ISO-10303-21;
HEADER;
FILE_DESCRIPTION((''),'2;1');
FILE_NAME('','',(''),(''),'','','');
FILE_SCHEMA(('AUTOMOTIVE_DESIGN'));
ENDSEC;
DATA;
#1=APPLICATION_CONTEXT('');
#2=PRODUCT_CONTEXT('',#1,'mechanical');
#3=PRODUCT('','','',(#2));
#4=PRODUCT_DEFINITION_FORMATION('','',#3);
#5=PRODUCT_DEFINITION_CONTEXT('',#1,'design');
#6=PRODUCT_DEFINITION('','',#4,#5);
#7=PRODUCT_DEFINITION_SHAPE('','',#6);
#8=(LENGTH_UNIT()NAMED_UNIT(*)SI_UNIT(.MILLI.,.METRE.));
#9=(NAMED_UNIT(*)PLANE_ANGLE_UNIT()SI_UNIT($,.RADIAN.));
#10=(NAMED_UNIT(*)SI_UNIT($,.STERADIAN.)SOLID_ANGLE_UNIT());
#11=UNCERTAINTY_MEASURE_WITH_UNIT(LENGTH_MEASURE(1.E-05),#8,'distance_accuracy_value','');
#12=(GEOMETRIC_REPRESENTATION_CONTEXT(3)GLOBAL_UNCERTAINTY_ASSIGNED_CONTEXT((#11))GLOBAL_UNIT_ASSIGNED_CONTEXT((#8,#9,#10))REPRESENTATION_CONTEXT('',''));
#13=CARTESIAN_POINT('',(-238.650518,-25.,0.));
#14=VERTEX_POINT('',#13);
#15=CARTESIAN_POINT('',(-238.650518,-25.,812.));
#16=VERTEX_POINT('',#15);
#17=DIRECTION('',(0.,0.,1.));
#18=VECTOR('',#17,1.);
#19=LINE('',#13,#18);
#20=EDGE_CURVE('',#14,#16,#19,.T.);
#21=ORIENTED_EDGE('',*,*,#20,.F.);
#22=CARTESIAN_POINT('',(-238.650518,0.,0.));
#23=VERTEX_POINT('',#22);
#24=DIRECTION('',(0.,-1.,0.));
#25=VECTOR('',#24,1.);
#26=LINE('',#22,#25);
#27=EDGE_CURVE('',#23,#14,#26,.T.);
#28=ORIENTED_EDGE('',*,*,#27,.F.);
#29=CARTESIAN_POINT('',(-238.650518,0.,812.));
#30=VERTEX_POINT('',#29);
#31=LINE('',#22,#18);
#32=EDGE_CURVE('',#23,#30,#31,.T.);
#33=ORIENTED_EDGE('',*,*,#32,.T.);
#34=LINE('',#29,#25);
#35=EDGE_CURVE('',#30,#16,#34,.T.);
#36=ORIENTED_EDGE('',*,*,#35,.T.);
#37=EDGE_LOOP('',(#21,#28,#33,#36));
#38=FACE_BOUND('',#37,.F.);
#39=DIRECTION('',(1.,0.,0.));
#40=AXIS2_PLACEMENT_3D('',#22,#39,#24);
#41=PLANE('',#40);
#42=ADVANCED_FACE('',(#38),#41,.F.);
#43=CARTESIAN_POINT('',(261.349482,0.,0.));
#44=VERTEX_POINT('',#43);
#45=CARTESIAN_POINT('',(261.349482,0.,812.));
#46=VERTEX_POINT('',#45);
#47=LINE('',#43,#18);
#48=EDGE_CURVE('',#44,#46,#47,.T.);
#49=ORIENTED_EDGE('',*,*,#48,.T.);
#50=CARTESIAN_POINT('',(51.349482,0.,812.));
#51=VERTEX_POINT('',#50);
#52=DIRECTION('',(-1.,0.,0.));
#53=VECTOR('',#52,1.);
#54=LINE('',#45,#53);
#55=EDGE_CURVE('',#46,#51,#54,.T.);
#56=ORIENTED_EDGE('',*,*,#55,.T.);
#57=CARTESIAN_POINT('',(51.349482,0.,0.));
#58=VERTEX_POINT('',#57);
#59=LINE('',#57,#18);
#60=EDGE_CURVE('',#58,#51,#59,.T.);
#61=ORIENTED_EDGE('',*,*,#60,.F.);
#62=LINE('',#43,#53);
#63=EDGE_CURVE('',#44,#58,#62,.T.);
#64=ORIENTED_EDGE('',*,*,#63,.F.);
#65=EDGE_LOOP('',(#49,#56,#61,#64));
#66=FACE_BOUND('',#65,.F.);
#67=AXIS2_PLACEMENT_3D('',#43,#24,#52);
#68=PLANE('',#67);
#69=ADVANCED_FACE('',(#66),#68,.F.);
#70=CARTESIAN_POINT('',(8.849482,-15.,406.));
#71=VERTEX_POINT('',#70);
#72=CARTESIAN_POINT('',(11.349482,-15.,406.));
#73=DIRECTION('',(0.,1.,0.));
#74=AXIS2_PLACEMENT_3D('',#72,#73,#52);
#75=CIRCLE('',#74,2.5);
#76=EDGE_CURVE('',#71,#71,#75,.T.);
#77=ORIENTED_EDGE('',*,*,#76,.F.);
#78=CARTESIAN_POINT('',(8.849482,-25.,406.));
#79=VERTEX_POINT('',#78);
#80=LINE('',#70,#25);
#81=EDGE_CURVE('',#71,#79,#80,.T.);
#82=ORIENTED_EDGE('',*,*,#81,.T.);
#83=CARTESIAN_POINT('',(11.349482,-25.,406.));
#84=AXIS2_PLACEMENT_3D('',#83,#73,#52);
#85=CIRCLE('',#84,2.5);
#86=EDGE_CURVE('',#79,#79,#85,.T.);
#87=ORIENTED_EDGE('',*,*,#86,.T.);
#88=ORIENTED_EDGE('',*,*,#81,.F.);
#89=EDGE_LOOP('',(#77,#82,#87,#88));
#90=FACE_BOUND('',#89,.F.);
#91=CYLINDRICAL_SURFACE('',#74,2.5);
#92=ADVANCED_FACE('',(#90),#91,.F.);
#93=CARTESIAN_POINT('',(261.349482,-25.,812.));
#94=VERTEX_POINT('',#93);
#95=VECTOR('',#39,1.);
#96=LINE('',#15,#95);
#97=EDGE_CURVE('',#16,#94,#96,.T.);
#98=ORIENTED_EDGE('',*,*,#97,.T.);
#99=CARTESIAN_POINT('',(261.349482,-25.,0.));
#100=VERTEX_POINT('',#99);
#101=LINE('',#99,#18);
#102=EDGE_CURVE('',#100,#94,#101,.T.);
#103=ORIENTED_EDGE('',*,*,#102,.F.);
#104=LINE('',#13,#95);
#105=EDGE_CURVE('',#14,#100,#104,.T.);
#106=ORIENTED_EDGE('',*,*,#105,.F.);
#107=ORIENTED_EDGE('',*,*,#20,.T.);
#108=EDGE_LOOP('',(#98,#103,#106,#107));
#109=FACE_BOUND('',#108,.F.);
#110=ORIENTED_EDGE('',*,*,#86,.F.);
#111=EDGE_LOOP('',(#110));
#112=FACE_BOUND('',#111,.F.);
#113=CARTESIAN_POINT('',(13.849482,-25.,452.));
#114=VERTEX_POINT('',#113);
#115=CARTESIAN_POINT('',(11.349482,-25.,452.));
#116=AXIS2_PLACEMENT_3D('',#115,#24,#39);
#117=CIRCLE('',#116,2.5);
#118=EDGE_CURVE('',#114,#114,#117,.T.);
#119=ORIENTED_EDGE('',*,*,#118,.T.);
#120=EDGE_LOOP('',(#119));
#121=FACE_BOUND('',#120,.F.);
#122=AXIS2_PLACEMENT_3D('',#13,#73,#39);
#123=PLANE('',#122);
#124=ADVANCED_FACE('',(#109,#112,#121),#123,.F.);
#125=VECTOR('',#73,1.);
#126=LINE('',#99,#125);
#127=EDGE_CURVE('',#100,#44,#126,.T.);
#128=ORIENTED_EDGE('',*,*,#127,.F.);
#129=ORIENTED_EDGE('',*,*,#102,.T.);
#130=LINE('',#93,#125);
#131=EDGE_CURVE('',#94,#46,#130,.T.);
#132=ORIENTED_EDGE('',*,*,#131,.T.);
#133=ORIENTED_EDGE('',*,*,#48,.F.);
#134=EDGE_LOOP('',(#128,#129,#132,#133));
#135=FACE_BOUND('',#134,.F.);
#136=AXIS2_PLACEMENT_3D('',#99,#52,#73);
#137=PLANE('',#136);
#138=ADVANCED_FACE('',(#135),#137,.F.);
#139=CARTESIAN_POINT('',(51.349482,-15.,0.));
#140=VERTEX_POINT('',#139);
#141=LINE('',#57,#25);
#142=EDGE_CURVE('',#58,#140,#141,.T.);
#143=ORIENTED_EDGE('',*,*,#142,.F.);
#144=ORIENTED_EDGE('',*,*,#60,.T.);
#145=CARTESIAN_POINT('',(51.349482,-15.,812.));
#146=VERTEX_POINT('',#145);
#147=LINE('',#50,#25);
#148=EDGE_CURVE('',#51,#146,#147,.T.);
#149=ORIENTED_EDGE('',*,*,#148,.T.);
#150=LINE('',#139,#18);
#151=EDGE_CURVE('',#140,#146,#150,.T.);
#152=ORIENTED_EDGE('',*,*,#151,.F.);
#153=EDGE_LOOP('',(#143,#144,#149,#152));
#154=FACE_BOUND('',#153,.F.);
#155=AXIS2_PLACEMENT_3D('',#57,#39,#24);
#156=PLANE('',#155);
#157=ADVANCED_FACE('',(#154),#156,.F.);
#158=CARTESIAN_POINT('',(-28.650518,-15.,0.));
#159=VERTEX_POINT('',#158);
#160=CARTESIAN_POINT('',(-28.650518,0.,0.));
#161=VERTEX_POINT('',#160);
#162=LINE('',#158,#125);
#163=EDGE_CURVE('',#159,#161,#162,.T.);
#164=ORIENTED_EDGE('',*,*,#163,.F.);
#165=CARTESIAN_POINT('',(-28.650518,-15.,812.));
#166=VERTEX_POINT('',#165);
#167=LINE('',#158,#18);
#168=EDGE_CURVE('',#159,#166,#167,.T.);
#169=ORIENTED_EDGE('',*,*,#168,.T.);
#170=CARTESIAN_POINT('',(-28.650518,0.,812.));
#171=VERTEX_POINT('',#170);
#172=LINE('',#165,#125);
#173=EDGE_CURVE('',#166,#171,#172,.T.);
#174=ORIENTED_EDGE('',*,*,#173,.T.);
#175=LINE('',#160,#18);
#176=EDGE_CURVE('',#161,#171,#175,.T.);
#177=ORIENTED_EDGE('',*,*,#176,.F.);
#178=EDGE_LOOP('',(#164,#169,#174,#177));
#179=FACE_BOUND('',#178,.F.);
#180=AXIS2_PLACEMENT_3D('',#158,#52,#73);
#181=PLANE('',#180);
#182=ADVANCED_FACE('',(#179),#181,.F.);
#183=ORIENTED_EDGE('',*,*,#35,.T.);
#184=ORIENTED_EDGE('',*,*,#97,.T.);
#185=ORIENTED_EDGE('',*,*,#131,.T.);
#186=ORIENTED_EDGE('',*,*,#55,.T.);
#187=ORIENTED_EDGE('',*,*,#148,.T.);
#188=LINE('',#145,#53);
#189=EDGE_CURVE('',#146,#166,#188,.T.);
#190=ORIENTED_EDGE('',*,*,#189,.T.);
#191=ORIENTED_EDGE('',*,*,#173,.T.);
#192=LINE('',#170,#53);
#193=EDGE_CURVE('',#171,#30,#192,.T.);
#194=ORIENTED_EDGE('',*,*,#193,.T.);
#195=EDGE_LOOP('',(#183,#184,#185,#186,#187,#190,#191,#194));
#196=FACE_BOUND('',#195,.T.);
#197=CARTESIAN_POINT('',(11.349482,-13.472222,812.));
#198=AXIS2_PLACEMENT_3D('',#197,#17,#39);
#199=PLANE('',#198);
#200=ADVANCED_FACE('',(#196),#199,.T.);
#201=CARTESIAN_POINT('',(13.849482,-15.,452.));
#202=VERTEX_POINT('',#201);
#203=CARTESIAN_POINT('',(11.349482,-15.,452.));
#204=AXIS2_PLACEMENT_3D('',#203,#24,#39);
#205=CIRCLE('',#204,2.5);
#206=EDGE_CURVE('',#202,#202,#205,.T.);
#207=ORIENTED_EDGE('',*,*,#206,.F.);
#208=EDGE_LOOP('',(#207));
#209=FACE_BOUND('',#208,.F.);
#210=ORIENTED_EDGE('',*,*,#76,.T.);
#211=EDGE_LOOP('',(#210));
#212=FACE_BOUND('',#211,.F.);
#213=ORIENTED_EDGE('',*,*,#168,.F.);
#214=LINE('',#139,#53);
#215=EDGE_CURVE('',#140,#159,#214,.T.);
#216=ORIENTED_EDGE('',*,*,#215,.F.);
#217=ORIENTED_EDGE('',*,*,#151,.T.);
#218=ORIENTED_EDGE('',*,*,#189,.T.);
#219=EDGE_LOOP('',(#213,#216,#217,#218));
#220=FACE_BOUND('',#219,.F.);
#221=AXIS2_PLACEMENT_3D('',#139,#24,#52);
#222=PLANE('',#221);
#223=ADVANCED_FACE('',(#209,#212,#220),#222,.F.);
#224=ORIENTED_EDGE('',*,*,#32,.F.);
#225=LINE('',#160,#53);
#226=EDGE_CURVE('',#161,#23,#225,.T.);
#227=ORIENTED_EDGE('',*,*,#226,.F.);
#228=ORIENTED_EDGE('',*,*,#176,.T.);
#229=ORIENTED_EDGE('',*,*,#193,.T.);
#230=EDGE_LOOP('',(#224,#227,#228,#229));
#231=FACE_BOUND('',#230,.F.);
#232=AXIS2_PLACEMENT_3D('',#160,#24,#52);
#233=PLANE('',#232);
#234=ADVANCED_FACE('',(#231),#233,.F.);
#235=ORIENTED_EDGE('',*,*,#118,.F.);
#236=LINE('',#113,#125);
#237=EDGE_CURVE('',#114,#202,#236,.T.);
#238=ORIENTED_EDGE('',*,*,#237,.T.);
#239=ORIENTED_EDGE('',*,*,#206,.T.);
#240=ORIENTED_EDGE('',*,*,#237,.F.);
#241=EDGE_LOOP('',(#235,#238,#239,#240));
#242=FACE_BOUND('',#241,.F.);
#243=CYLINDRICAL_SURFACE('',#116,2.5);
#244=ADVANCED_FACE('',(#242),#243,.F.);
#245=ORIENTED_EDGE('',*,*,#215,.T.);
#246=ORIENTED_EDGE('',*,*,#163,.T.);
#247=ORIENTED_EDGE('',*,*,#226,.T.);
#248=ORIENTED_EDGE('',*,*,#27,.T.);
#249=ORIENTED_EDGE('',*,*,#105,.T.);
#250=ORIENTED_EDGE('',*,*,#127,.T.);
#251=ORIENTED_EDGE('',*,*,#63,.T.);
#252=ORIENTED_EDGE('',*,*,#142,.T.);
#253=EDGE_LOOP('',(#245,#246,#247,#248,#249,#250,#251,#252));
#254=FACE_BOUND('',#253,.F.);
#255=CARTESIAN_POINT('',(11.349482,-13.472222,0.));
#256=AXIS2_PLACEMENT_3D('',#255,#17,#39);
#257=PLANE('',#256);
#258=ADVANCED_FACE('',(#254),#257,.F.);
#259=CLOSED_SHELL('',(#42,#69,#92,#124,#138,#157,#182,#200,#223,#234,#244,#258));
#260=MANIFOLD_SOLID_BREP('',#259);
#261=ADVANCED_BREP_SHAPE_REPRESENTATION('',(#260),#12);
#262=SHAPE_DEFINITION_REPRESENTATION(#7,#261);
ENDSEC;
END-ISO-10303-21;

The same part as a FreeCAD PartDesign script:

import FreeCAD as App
import Part
import Sketcher

V = App.Vector
Q = App.Units.Quantity


def add_polygon(sketch, points):
    """Adds a closed chain of lines whose ends are joined by coincident constraints."""
    first, n = sketch.GeometryCount, len(points)
    for a, b in zip(points, points[1:] + points[:1]):
        sketch.addGeometry(Part.LineSegment(App.Vector(*a, 0), App.Vector(*b, 0)), False)
    for i in range(n):
        sketch.addConstraint(Sketcher.Constraint("Coincident", first + i, 2, first + (i + 1) % n, 1))

doc = App.newDocument("Part")
params = doc.addObject("Spreadsheet::Sheet", "Params")
for row, (alias, value) in enumerate([
    ("sketch1_width", "210 mm"),
    ("sketch1_width2", "500 mm"),
    ("sketch1_height", "25 mm"),
    ("sketch1_height2", "15 mm"),
    ("pad1_length", "812 mm"),
    ("sketch2_diameter", "5 mm"),
    ("sketch3_diameter", "5 mm"),
], start=1):
    params.set(f"A{row}", alias)
    params.set(f"B{row}", "=" + value)
    params.setAlias(f"B{row}", alias)

body = doc.addObject("PartDesign::Body", "Body")

sketch1 = body.newObject("Sketcher::SketchObject", "Sketch")
sketch1.AttachmentSupport = (doc.getObject("XY_Plane"), [""])
sketch1.MapMode = "FlatFace"
add_polygon(sketch1, [(-29, 0), (-239, 0), (-239, -25), (261, -25), (261, 0), (51, 0), (51, -15), (-29, -15)])
sketch1.addConstraint([
    Sketcher.Constraint("Horizontal", 0),
    Sketcher.Constraint("Vertical", 1),
    Sketcher.Constraint("Horizontal", 2),
    Sketcher.Constraint("Vertical", 3),
    Sketcher.Constraint("Horizontal", 4),
    Sketcher.Constraint("Vertical", 5),
    Sketcher.Constraint("Horizontal", 6),
    Sketcher.Constraint("Vertical", 7),
    Sketcher.Constraint("PointOnObject", 0, 2, -1),
    Sketcher.Constraint("PointOnObject", 3, 2, -1),
    Sketcher.Constraint("Equal", 0, 4),
    Sketcher.Constraint("DistanceX", 0, 2, 0, 1, Q("210 mm")),
    Sketcher.Constraint("DistanceX", 2, 1, 2, 2, Q("500 mm")),
    Sketcher.Constraint("DistanceY", 1, 2, 1, 1, Q("25 mm")),
    Sketcher.Constraint("DistanceY", 5, 2, 5, 1, Q("15 mm")),
    Sketcher.Constraint("DistanceX", 0, 2, -1, 1, Q("238.650518 mm")),
])
sketch1.setExpression("Constraints[19]", "Params.sketch1_width")
sketch1.setExpression("Constraints[20]", "Params.sketch1_width2")
sketch1.setExpression("Constraints[21]", "Params.sketch1_height")
sketch1.setExpression("Constraints[22]", "Params.sketch1_height2")
pad1 = body.newObject("PartDesign::Pad", "Pad")
pad1.Profile = sketch1
pad1.setExpression("Length", "Params.pad1_length")

sketch2 = body.newObject("Sketcher::SketchObject", "Sketch001")
sketch2.AttachmentSupport = (doc.getObject("XZ_Plane"), [""])
sketch2.MapMode = "FlatFace"
sketch2.AttachmentOffset = App.Placement(V(0, 0, 15), App.Rotation())
sketch2.addGeometry(Part.Circle(V(11.3, 406, 0), V(0, 0, 1), 2.5), False)
sketch2.addConstraint([
    Sketcher.Constraint("Diameter", 0, Q("5 mm")),
    Sketcher.Constraint("DistanceY", -1, 1, 0, 3, Q("406 mm")),
    Sketcher.Constraint("DistanceX", -1, 1, 0, 3, Q("11.349482 mm")),
])
sketch2.setExpression("Constraints[0]", "Params.sketch2_diameter")
pocket1 = body.newObject("PartDesign::Pocket", "Pocket")
pocket1.Profile = sketch2
pocket1.Type = "ThroughAll"
pocket1.Reversed = True

sketch3 = body.newObject("Sketcher::SketchObject", "Sketch002")
sketch3.AttachmentSupport = (doc.getObject("XZ_Plane"), [""])
sketch3.MapMode = "FlatFace"
sketch3.AttachmentOffset = App.Placement(V(0, 0, 25), App.Rotation())
sketch3.addGeometry(Part.Circle(V(11.3, 452, 0), V(0, 0, 1), 2.5), False)
sketch3.addConstraint([
    Sketcher.Constraint("Diameter", 0, Q("5 mm")),
    Sketcher.Constraint("DistanceY", -1, 1, 0, 3, Q("452 mm")),
    Sketcher.Constraint("DistanceX", -1, 1, 0, 3, Q("11.349482 mm")),
])
sketch3.setExpression("Constraints[0]", "Params.sketch3_diameter")
pocket2 = body.newObject("PartDesign::Pocket", "Pocket001")
pocket2.Profile = sketch3
pocket2.Type = "ThroughAll"

doc.recompute()
